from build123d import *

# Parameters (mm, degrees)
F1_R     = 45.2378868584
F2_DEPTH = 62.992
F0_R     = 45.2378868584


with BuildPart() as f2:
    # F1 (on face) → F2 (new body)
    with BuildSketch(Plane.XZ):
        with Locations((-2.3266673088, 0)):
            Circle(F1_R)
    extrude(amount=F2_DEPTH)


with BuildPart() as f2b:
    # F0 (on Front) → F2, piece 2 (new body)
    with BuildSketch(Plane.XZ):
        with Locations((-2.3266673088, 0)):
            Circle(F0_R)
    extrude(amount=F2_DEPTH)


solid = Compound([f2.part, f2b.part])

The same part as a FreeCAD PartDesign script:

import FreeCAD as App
import Part
import Sketcher
from FreeCAD import Vector
Q = App.Units.Quantity

doc = App.newDocument("Part")
body = doc.addObject("PartDesign::Body", "Body")

# Sketch on XZ plane
sketch1 = body.newObject("Sketcher::SketchObject", "Sketch")
sketch1.AttachmentSupport = (doc.getObject("XZ_Plane"), [""])
sketch1.MapMode = "FlatFace"
sketch1.addGeometry(Part.Circle(Vector(-2.326667, 0, 0), Vector(0, 0, 1), 45.237887), False)
sketch1.addConstraint(Sketcher.Constraint("PointOnObject", 0, 3, -1))
sketch1.addConstraint(Sketcher.Constraint("Diameter", 0, 90.475774))
sketch1.addConstraint(Sketcher.Constraint("DistanceX", 0, 3, -1, 1, 2.326667))
pad1 = body.newObject("PartDesign::Pad", "Pad")
pad1.Profile = sketch1
pad1.Length = Q("2.48 in")
body2 = doc.addObject("PartDesign::Body", "Body001")

# Sketch on XZ plane
sketch2 = body2.newObject("Sketcher::SketchObject", "Sketch001")
sketch2.AttachmentSupport = (doc.getObject("XZ_Plane001"), [""])
sketch2.MapMode = "FlatFace"
sketch2.addGeometry(Part.Circle(Vector(-2.326667, 0, 0), Vector(0, 0, 1), 45.237887), False)
sketch2.addConstraint(Sketcher.Constraint("PointOnObject", 0, 3, -1))
sketch2.addConstraint(Sketcher.Constraint("Diameter", 0, 90.475774))
sketch2.addConstraint(Sketcher.Constraint("DistanceX", 0, 3, -1, 1, 2.326667))
pad2 = body2.newObject("PartDesign::Pad", "Pad001")
pad2.Profile = sketch2
pad2.Length = Q("2.48 in")

doc.recompute()
